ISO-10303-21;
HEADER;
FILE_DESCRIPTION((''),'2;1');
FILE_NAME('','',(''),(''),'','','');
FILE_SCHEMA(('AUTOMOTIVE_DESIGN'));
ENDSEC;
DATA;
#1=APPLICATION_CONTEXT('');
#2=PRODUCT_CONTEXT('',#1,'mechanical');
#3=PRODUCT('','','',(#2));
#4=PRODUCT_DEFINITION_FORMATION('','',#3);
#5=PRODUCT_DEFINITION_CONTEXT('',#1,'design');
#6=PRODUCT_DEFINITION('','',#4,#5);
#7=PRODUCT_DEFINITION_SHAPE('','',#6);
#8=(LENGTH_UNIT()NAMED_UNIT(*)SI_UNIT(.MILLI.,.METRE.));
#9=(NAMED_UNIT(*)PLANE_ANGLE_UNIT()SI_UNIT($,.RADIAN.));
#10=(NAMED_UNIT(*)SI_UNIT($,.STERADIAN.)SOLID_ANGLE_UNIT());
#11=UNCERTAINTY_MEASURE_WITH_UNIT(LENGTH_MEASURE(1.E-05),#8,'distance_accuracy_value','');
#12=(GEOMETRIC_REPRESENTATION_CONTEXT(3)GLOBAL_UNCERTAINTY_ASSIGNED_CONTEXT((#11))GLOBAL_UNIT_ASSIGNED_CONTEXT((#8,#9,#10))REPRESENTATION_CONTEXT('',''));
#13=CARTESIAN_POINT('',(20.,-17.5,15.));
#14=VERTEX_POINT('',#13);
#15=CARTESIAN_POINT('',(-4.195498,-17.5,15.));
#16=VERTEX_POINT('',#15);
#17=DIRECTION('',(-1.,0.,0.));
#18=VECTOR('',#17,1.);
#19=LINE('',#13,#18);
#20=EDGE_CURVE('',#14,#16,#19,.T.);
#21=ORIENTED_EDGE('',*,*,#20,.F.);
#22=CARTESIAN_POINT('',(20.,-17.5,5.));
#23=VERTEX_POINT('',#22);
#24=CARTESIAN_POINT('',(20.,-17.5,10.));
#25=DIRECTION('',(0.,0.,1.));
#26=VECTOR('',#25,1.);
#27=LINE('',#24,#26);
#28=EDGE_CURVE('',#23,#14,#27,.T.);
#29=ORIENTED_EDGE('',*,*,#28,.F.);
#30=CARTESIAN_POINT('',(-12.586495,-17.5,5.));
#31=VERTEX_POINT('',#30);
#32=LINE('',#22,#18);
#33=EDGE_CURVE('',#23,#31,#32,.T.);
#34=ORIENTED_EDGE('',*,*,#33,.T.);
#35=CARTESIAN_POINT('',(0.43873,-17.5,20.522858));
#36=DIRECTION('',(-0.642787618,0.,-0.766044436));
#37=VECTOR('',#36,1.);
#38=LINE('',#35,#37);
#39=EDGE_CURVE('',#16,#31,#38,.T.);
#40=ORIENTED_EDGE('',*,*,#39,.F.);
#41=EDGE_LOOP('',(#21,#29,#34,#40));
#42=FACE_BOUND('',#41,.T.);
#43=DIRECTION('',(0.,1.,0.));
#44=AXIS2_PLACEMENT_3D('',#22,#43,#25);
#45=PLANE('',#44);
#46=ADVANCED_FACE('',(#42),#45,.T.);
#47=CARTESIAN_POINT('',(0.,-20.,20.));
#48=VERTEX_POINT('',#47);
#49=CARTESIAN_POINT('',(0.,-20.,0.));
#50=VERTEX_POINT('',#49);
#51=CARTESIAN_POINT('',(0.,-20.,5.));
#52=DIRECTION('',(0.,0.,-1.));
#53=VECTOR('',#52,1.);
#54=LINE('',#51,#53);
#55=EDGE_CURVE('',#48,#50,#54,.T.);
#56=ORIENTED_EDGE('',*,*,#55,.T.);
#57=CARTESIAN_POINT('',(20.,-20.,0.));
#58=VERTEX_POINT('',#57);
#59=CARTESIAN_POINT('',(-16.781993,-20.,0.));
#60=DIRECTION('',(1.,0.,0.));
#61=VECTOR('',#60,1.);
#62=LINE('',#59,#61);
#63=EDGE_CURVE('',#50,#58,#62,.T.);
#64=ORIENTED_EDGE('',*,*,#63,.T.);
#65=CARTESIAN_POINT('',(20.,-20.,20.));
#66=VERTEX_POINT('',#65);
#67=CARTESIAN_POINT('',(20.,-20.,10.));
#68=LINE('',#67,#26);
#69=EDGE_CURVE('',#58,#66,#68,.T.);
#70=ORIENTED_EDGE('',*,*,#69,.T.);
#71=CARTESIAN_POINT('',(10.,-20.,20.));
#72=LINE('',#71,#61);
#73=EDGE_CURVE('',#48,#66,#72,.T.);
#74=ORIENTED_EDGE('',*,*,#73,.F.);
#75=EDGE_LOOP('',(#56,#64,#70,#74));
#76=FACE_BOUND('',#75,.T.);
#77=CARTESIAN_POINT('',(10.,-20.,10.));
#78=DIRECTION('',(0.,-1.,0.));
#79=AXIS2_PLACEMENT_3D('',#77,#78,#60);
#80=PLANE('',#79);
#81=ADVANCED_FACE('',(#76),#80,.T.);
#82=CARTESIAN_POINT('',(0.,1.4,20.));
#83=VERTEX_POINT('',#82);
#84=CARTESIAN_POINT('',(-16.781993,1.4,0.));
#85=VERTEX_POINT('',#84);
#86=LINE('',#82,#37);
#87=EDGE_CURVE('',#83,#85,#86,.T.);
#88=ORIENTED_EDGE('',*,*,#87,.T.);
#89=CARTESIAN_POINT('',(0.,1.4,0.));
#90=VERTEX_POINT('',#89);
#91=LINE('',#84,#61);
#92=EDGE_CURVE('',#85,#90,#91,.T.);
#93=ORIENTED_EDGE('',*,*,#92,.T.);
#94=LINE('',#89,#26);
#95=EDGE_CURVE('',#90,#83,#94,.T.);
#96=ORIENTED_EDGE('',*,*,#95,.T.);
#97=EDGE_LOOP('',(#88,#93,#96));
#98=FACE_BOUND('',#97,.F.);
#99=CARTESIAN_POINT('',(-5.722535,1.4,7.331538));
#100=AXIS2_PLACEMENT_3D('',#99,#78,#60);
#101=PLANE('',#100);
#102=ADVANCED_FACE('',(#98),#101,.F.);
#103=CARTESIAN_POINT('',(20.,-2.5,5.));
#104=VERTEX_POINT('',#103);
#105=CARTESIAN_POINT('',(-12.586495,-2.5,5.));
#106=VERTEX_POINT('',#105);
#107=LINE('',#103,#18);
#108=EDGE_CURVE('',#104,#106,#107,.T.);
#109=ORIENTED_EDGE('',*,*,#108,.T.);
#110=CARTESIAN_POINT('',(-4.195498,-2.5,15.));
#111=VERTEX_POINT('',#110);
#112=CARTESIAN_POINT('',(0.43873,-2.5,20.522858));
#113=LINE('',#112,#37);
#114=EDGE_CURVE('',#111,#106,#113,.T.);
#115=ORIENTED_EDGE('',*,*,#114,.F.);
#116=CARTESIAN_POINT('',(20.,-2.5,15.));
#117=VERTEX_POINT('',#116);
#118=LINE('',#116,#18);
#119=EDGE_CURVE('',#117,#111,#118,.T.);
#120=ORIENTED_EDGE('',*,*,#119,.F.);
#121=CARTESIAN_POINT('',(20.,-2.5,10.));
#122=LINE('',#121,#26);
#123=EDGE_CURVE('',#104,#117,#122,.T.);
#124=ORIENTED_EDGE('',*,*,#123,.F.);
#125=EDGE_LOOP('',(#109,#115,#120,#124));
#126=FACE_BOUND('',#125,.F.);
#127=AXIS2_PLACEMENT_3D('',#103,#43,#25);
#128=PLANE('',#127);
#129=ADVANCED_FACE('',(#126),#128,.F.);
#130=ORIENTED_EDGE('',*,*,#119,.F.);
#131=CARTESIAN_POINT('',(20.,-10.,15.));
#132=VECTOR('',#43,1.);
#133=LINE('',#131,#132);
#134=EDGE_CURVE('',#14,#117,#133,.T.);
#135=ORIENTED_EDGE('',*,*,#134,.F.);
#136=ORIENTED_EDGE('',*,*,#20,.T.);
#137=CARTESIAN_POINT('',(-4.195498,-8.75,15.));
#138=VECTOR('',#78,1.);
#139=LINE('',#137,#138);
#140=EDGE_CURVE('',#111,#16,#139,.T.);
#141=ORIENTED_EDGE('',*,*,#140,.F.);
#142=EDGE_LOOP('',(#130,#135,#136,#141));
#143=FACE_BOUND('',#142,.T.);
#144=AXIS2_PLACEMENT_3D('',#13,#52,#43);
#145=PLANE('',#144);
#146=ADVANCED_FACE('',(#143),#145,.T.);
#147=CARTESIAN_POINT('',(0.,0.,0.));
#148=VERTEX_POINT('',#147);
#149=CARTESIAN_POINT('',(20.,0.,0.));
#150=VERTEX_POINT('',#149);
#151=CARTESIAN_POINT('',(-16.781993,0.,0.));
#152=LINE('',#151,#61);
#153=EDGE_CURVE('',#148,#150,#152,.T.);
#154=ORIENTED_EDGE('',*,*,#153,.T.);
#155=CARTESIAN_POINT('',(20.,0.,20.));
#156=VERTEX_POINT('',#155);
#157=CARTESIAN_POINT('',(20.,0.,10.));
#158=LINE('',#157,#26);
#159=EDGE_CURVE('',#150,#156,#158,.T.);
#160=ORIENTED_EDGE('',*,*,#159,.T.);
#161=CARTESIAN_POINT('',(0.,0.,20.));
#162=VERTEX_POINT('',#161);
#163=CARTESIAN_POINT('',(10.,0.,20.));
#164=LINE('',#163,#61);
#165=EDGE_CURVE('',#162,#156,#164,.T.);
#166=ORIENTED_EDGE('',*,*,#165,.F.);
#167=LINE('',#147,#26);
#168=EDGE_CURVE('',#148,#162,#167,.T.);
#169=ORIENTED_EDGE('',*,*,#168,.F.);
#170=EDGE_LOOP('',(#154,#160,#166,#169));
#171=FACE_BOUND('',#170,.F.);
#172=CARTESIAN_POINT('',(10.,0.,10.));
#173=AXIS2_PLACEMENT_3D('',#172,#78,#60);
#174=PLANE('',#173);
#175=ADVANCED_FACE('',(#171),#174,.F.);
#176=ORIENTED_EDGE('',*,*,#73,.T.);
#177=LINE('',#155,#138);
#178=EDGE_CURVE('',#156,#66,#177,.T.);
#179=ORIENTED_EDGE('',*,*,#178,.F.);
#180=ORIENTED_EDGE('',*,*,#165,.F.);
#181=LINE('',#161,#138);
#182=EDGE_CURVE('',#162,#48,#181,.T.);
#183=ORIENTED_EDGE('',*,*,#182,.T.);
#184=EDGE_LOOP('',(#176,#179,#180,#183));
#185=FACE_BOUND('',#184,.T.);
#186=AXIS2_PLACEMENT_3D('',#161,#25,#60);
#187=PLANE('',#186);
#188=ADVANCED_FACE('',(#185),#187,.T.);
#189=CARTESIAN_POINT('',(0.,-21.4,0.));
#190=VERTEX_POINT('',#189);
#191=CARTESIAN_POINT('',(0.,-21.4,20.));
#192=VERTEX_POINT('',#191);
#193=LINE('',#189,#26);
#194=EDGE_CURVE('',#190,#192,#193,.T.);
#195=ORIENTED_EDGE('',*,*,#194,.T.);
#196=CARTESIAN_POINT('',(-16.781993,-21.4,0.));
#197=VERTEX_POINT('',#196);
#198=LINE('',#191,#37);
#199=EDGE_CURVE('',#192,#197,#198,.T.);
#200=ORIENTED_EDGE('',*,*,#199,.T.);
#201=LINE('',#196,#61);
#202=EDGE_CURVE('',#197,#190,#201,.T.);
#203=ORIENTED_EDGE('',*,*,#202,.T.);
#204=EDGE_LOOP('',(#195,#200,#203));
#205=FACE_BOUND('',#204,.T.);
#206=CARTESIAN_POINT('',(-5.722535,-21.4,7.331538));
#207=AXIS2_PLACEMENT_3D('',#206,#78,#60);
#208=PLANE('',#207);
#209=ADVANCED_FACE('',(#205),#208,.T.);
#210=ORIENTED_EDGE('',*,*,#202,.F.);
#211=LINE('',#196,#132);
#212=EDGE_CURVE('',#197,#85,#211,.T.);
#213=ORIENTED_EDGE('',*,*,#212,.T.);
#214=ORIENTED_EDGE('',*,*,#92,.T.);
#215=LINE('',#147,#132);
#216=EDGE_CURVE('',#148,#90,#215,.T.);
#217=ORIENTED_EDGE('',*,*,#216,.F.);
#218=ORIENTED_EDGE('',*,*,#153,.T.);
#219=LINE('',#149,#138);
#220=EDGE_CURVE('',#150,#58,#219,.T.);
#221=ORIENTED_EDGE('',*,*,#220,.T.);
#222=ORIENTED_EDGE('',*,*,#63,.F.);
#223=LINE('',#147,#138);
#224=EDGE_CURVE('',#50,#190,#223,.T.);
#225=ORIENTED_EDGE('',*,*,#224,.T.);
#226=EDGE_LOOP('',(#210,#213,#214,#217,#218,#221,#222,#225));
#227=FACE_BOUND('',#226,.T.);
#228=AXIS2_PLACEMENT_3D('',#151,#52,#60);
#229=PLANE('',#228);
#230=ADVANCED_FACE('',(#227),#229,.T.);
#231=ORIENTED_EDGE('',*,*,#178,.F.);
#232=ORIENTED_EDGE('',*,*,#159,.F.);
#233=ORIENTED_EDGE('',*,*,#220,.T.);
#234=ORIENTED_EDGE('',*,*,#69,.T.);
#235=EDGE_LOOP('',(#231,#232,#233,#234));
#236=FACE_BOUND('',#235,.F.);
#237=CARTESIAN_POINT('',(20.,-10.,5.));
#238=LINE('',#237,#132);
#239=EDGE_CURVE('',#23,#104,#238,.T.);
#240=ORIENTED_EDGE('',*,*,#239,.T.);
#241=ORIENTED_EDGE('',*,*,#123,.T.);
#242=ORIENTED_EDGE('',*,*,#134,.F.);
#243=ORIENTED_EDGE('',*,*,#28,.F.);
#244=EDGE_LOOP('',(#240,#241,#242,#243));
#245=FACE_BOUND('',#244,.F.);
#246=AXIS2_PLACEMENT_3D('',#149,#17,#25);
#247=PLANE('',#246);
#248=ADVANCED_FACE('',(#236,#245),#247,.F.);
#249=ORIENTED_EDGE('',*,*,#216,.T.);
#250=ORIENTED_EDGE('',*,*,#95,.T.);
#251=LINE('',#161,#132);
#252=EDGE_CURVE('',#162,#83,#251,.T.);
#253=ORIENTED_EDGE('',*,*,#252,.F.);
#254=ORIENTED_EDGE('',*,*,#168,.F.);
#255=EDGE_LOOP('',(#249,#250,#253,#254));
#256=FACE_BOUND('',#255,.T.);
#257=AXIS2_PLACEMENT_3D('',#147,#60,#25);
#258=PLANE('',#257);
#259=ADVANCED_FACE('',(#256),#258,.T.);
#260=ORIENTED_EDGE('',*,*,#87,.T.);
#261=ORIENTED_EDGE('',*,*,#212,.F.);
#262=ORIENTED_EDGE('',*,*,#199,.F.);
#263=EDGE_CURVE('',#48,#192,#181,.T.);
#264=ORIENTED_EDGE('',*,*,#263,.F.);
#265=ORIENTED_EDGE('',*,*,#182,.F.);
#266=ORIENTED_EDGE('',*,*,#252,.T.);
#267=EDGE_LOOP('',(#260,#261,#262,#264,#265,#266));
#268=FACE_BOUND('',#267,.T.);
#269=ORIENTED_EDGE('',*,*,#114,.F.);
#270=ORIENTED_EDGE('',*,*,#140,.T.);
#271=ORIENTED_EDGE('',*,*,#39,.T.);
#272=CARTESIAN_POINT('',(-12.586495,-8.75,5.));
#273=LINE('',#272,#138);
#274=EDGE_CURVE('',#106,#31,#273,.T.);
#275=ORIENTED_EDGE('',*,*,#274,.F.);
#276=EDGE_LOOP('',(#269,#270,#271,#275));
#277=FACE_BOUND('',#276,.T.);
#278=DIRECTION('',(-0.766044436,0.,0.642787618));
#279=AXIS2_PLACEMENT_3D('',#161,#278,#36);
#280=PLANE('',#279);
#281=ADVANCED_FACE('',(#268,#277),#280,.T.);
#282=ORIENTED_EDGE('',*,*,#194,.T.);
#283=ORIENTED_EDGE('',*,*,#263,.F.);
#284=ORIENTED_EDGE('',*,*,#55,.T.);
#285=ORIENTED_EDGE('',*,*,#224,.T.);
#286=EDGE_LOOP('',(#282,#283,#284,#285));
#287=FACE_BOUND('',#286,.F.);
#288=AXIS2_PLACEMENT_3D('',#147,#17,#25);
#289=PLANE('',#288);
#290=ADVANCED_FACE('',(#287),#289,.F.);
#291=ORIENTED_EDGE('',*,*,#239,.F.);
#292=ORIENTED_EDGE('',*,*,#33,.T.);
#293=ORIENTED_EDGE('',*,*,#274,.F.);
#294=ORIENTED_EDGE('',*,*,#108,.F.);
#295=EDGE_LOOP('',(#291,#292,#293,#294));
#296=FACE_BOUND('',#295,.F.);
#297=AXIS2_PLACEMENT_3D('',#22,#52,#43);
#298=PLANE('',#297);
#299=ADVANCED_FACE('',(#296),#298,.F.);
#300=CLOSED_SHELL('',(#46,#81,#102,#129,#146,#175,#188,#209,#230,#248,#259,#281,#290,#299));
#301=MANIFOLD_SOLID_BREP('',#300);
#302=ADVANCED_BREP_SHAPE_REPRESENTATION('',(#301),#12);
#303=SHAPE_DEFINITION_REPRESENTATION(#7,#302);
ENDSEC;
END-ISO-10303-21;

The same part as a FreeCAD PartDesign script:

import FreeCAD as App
import Part
import Sketcher
from FreeCAD import Vector
Q = App.Units.Quantity


def add_polygon(sketch, points):
    """Adds a closed chain of lines whose ends are joined by coincident constraints."""
    first, n = sketch.GeometryCount, len(points)
    for a, b in zip(points, points[1:] + points[:1]):
        sketch.addGeometry(Part.LineSegment(App.Vector(*a, 0), App.Vector(*b, 0)), False)
    for i in range(n):
        sketch.addConstraint(Sketcher.Constraint("Coincident", first + i, 2, first + (i + 1) % n, 1))

doc = App.newDocument("Part")
body = doc.addObject("PartDesign::Body", "Body")

sketch1 = doc.addObject("Sketcher::SketchObject", "Sketch")
body.addObject(sketch1)
sketch1.AttachmentSupport = (doc.XZ_Plane, [""])
sketch1.MapMode = "FlatFace"
add_polygon(sketch1, [(20, 0), (20, 20), (0, 20), (-16.781993, 0)])
sketch1.addConstraint([
    Sketcher.Constraint("Vertical", 0),
    Sketcher.Constraint("Horizontal", 1),
    Sketcher.Constraint("Horizontal", 3),
    Sketcher.Constraint("PointOnObject", 1, 2, -2),
    Sketcher.Constraint("PointOnObject", 2, 2, -1),
    Sketcher.Constraint("Equal", 1, 0),
    Sketcher.Constraint("DistanceX", 1, 2, 1, 1, 20.0),
    Sketcher.Constraint("Angle", 2, Q("-130.000001 deg")),
])
pad1 = doc.addObject("PartDesign::Pad", "Pad")
body.addObject(pad1)
pad1.Profile = sketch1
pad1.Length = 20

sketch2 = doc.addObject("Sketcher::SketchObject", "Sketch001")
body.addObject(sketch2)
sketch2.AttachmentSupport = (doc.XZ_Plane, [""])
sketch2.MapMode = "FlatFace"
add_polygon(sketch2, [(-16.781993, 0), (0, 0), (0, 20)])
sketch2.addConstraint([
    Sketcher.Constraint("Horizontal", 0),
    Sketcher.Constraint("Vertical", 1),
    Sketcher.Constraint("Coincident", 0, 2, -1, 1),
    Sketcher.Constraint("DistanceY", 1, 1, 1, 2, 20.0),
    Sketcher.Constraint("Angle", 2, Q("-130.000001 deg")),
])
pad2 = doc.addObject("PartDesign::Pad", "Pad001")
body.addObject(pad2)
pad2.Profile = sketch2
pad2.Type = "TwoLengths"
pad2.Length = 21.4
pad2.Length2 = 1.4

sketch3 = doc.addObject("Sketcher::SketchObject", "Sketch002")
body.addObject(sketch3)
sketch3.AttachmentSupport = (doc.YZ_Plane, [""])
sketch3.MapMode = "FlatFace"
sketch3.AttachmentOffset = App.Placement(Vector(0, 0, 20), App.Rotation())
add_polygon(sketch3, [(-17.5, 15), (-17.5, 5), (-2.5, 5), (-2.5, 15)])
sketch3.addConstraint([
    Sketcher.Constraint("Vertical", 0),
    Sketcher.Constraint("Horizontal", 1),
    Sketcher.Constraint("Vertical", 2),
    Sketcher.Constraint("Horizontal", 3),
    Sketcher.Constraint("DistanceX", 1, 1, 1, 2, 15.0),
    Sketcher.Constraint("DistanceY", 0, 2, 0, 1, 10.0),
    Sketcher.Constraint("DistanceY", -1, 1, 0, 2, 5.0),
    Sketcher.Constraint("DistanceX", 0, 2, -1, 1, 17.5),
])
pocket1 = doc.addObject("PartDesign::Pocket", "Pocket")
body.addObject(pocket1)
pocket1.Profile = sketch3
pocket1.Type = "ThroughAll"

doc.recompute()
